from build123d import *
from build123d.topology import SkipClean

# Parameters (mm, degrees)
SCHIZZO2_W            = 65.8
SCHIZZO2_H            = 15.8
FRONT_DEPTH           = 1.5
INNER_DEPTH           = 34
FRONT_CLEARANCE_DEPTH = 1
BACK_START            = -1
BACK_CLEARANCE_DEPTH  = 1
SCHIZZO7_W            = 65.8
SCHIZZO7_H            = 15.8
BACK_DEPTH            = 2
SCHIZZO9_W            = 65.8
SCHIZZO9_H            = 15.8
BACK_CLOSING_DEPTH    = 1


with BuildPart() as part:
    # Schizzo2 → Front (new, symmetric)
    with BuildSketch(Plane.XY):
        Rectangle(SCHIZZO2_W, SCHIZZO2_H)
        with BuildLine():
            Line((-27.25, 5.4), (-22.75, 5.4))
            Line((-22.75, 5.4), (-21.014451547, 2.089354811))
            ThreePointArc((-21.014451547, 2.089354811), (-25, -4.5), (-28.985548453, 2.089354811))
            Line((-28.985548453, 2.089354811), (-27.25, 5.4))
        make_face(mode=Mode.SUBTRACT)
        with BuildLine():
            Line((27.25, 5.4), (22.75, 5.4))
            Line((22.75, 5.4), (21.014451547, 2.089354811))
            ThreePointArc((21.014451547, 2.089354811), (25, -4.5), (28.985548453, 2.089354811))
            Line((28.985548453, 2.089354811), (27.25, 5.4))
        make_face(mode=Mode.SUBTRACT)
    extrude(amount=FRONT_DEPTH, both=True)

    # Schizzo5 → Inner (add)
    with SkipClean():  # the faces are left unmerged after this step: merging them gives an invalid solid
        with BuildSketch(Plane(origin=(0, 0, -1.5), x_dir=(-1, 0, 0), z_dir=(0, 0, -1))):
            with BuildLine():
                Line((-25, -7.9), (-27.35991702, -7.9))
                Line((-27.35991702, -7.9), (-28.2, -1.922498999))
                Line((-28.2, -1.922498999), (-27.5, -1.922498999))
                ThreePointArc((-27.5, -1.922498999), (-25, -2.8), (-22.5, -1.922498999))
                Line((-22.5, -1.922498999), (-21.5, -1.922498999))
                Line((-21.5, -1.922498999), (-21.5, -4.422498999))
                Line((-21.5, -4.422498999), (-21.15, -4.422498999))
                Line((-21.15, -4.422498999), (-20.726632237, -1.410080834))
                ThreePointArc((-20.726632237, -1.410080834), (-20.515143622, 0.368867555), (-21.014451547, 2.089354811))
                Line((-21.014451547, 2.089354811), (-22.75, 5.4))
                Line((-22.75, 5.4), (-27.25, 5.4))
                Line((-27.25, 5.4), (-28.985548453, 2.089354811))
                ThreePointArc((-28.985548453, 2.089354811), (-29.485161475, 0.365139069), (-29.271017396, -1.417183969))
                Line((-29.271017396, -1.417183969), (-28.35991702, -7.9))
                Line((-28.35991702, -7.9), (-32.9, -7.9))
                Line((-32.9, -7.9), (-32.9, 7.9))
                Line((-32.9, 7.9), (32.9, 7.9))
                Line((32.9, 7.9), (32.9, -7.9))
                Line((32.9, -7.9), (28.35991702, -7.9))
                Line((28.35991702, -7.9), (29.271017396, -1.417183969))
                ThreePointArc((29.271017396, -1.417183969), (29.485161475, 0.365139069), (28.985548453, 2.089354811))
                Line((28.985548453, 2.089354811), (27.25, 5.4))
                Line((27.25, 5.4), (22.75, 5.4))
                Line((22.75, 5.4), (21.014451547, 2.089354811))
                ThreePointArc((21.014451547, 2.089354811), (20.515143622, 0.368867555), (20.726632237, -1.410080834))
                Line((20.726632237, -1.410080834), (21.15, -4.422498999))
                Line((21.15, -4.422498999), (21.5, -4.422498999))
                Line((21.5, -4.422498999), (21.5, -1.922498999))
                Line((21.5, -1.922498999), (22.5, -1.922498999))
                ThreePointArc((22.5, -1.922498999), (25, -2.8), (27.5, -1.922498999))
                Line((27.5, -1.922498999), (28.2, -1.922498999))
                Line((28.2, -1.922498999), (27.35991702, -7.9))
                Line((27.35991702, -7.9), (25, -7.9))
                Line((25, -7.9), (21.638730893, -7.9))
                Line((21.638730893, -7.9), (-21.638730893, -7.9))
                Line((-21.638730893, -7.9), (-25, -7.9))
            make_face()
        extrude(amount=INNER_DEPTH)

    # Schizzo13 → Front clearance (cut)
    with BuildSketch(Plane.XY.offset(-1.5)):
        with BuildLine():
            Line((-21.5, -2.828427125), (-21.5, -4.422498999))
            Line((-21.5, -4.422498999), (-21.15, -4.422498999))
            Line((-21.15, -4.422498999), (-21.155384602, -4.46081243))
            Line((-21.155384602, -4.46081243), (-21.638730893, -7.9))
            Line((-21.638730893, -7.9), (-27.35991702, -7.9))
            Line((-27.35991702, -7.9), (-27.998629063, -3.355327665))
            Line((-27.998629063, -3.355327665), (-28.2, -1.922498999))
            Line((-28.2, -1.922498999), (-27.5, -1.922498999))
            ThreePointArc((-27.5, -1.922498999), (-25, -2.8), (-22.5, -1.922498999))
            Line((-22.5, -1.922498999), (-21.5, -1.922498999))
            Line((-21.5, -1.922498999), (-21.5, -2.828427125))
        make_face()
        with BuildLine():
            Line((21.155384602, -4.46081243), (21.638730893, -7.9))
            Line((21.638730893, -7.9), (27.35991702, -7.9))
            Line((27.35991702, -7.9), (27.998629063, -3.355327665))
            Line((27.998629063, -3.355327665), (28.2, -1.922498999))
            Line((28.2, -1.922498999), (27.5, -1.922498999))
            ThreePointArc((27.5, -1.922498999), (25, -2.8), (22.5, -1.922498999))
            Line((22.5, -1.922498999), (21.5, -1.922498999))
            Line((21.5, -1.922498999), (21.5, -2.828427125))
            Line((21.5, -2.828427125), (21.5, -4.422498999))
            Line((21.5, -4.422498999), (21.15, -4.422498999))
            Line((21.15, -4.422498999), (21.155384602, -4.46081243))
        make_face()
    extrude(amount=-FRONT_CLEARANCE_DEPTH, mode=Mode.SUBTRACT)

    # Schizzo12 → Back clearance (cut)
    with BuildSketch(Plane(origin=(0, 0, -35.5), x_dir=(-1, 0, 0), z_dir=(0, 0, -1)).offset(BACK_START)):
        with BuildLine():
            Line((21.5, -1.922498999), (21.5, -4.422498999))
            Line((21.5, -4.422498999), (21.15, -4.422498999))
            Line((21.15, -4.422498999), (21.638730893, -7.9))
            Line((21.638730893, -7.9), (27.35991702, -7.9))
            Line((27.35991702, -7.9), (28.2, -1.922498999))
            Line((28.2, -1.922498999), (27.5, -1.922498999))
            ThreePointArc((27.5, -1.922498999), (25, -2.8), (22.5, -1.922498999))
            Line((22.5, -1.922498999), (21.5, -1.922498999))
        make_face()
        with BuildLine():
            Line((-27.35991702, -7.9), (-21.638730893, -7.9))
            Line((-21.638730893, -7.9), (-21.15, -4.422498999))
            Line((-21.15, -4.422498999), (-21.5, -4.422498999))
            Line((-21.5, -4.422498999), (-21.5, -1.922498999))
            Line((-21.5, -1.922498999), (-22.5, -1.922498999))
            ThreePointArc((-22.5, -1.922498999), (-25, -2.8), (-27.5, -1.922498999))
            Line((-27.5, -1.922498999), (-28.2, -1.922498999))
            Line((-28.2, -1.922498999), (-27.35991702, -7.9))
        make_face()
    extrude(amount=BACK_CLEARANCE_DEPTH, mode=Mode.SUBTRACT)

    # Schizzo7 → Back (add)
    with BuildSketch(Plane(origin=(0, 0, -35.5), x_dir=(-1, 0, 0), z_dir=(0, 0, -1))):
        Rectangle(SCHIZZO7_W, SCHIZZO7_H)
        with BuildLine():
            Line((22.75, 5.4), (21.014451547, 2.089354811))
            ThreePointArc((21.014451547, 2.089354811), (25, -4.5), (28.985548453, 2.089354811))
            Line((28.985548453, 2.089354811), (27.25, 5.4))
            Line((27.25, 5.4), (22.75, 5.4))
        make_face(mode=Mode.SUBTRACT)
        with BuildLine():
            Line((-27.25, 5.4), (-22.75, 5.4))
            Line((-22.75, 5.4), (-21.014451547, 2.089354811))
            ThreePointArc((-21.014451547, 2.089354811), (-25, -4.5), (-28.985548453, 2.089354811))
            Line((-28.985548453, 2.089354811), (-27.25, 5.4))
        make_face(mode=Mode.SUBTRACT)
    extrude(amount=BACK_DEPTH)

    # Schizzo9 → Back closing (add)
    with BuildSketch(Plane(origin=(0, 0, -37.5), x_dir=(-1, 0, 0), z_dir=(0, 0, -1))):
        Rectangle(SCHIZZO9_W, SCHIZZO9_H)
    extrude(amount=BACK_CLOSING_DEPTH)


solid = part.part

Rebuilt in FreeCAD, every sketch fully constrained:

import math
import FreeCAD as App
import Part
import Sketcher
Q = App.Units.Quantity

doc = App.newDocument("Part")
body = doc.addObject("PartDesign::Body", "Body")

sketch1 = doc.addObject("Sketcher::SketchObject", "Sketch")
body.addObject(sketch1)
sketch1.AttachmentSupport = (doc.XY_Plane, [""])
sketch1.MapMode = "FlatFace"
sketch1.addGeometry([
    Part.LineSegment(App.Vector(-32.9, 7.9, 0), App.Vector(-32.9, -7.9, 0)),
    Part.LineSegment(App.Vector(-32.9, -7.9, 0), App.Vector(32.9, -7.9, 0)),
    Part.LineSegment(App.Vector(32.9, -7.9, 0), App.Vector(32.9, 7.9, 0)),
    Part.LineSegment(App.Vector(32.9, 7.9, 0), App.Vector(-32.9, 7.9, 0)),
    Part.LineSegment(App.Vector(-29, 2.1, 0), App.Vector(-27.2, 5.4, 0)),
    Part.LineSegment(App.Vector(-27.2, 5.4, 0), App.Vector(-22.8, 5.4, 0)),
    Part.LineSegment(App.Vector(-22.8, 5.4, 0), App.Vector(-21, 2.1, 0)),
    Part.ArcOfCircle(Part.Circle(App.Vector(-25, 0, 0), App.Vector(0, 0, 1), 4.5), math.radians(152), math.radians(388)),
    Part.LineSegment(App.Vector(22.8, 5.4, 0), App.Vector(27.2, 5.4, 0)),
    Part.LineSegment(App.Vector(27.2, 5.4, 0), App.Vector(29, 2.1, 0)),
    Part.ArcOfCircle(Part.Circle(App.Vector(25, 0, 0), App.Vector(0, 0, 1), 4.5), math.radians(152), math.radians(388)),
    Part.LineSegment(App.Vector(21, 2.1, 0), App.Vector(22.8, 5.4, 0)),
], False)
sketch1.addConstraint([
    Sketcher.Constraint("Coincident", 0, 2, 1, 1),
    Sketcher.Constraint("Coincident", 1, 2, 2, 1),
    Sketcher.Constraint("Coincident", 2, 2, 3, 1),
    Sketcher.Constraint("Coincident", 3, 2, 0, 1),
    Sketcher.Constraint("Coincident", 4, 2, 5, 1),
    Sketcher.Constraint("Coincident", 5, 2, 6, 1),
    Sketcher.Constraint("Tangent", 6, 2, 7, 2),
    Sketcher.Constraint("Tangent", 7, 1, 4, 1),
    Sketcher.Constraint("Coincident", 8, 2, 9, 1),
    Sketcher.Constraint("Tangent", 9, 2, 10, 2),
    Sketcher.Constraint("Tangent", 10, 1, 11, 1),
    Sketcher.Constraint("Coincident", 11, 2, 8, 1),
    Sketcher.Constraint("Vertical", 0),
    Sketcher.Constraint("Horizontal", 1),
    Sketcher.Constraint("Vertical", 2),
    Sketcher.Constraint("Horizontal", 3),
    Sketcher.Constraint("Horizontal", 5),
    Sketcher.Constraint("Horizontal", 8),
    Sketcher.Constraint("Equal", 7, 10),
    Sketcher.Constraint("Symmetric", 7, 3, 10, 3, -1, 1),
    Sketcher.Constraint("Symmetric", 0, 2, 2, 2, -1, 1),
    Sketcher.Constraint("Symmetric", 4, 2, 8, 2, -2),
    Sketcher.Constraint("Symmetric", 6, 2, 10, 1, -2),
    Sketcher.Constraint("Parallel", 6, 9),
    Sketcher.Constraint("Radius", 7, 4.5),
    Sketcher.Constraint("DistanceX", 1, 1, 1, 2, 65.8),
    Sketcher.Constraint("DistanceX", 5, 1, 5, 2, 4.5),
    Sketcher.Constraint("DistanceY", 0, 2, 0, 1, 15.8),
    Sketcher.Constraint("DistanceX", 7, 3, -1, 1, 25.0),
    Sketcher.Constraint("DistanceY", -1, 1, 4, 2, 5.4),
])
pad1 = doc.addObject("PartDesign::Pad", "Pad")
body.addObject(pad1)
pad1.Profile = sketch1
pad1.Length = 3
pad1.Midplane = True

sketch2 = doc.addObject("Sketcher::SketchObject", "Sketch001")
body.addObject(sketch2)
sketch2.AttachmentSupport = (doc.XY_Plane, [""])
sketch2.MapMode = "FlatFace"
sketch2.AttachmentOffset = App.Placement(App.Vector(0, 0, -1.5), App.Rotation())
sketch2.addGeometry([
    Part.LineSegment(App.Vector(27.36, -7.9, 0), App.Vector(-27.36, -7.9, 0)),
    Part.LineSegment(App.Vector(-27.36, -7.9, 0), App.Vector(-28.2, -1.92, 0)),
    Part.LineSegment(App.Vector(-28.2, -1.92, 0), App.Vector(-27.5, -1.92, 0)),
    Part.ArcOfCircle(Part.Circle(App.Vector(-25, 1.2, 0), App.Vector(0, 0, 1), 4), math.radians(-129), math.radians(-51)),
    Part.LineSegment(App.Vector(-22.5, -1.92, 0), App.Vector(-21.5, -1.92, 0)),
    Part.LineSegment(App.Vector(-21.5, -1.92, 0), App.Vector(-21.5, -4.42, 0)),
    Part.LineSegment(App.Vector(-21.5, -4.42, 0), App.Vector(-21.15, -4.42, 0)),
    Part.LineSegment(App.Vector(-21.15, -4.42, 0), App.Vector(-20.73, -1.41, 0)),
    Part.ArcOfCircle(Part.Circle(App.Vector(-25, 0, 0), App.Vector(0, 0, 1), 4.5), math.radians(-18), math.radians(28)),
    Part.LineSegment(App.Vector(-21.01, 2.09, 0), App.Vector(-22.75, 5.4, 0)),
    Part.LineSegment(App.Vector(-22.75, 5.4, 0), App.Vector(-27.25, 5.4, 0)),
    Part.LineSegment(App.Vector(-27.25, 5.4, 0), App.Vector(-28.99, 2.09, 0)),
    Part.ArcOfCircle(Part.Circle(App.Vector(-25, 0, 0), App.Vector(0, 0, 1), 4.5), math.radians(152), math.radians(198)),
    Part.LineSegment(App.Vector(-29.27, -1.42, 0), App.Vector(-28.36, -7.9, 0)),
    Part.LineSegment(App.Vector(-28.36, -7.9, 0), App.Vector(-32.9, -7.9, 0)),
    Part.LineSegment(App.Vector(-32.9, -7.9, 0), App.Vector(-32.9, 7.9, 0)),
    Part.LineSegment(App.Vector(-32.9, 7.9, 0), App.Vector(32.9, 7.9, 0)),
    Part.LineSegment(App.Vector(32.9, 7.9, 0), App.Vector(32.9, -7.9, 0)),
    Part.LineSegment(App.Vector(32.9, -7.9, 0), App.Vector(28.36, -7.9, 0)),
    Part.LineSegment(App.Vector(28.36, -7.9, 0), App.Vector(29.27, -1.42, 0)),
    Part.ArcOfCircle(Part.Circle(App.Vector(25, 0, 0), App.Vector(0, 0, 1), 4.5), math.radians(-18), math.radians(28)),
    Part.LineSegment(App.Vector(28.99, 2.09, 0), App.Vector(27.25, 5.4, 0)),
    Part.LineSegment(App.Vector(27.25, 5.4, 0), App.Vector(22.75, 5.4, 0)),
    Part.LineSegment(App.Vector(22.75, 5.4, 0), App.Vector(21.01, 2.09, 0)),
    Part.ArcOfCircle(Part.Circle(App.Vector(25, 0, 0), App.Vector(0, 0, 1), 4.5), math.radians(152), math.radians(198)),
    Part.LineSegment(App.Vector(20.73, -1.41, 0), App.Vector(21.15, -4.42, 0)),
    Part.LineSegment(App.Vector(21.15, -4.42, 0), App.Vector(21.5, -4.42, 0)),
    Part.LineSegment(App.Vector(21.5, -4.42, 0), App.Vector(21.5, -1.92, 0)),
    Part.LineSegment(App.Vector(21.5, -1.92, 0), App.Vector(22.5, -1.92, 0)),
    Part.ArcOfCircle(Part.Circle(App.Vector(25, 1.2, 0), App.Vector(0, 0, 1), 4), math.radians(-129), math.radians(-51)),
    Part.LineSegment(App.Vector(27.5, -1.92, 0), App.Vector(28.2, -1.92, 0)),
    Part.LineSegment(App.Vector(28.2, -1.92, 0), App.Vector(27.36, -7.9, 0)),
], False)
sketch2.addConstraint([
    Sketcher.Constraint("Coincident", 0, 2, 1, 1),
    Sketcher.Constraint("Coincident", 1, 2, 2, 1),
    Sketcher.Constraint("Coincident", 2, 2, 3, 1),
    Sketcher.Constraint("Coincident", 3, 2, 4, 1),
    Sketcher.Constraint("Coincident", 4, 2, 5, 1),
    Sketcher.Constraint("Coincident", 5, 2, 6, 1),
    Sketcher.Constraint("Coincident", 6, 2, 7, 1),
    Sketcher.Constraint("Coincident", 7, 2, 8, 1),
    Sketcher.Constraint("Tangent", 8, 2, 9, 1),
    Sketcher.Constraint("Coincident", 9, 2, 10, 1),
    Sketcher.Constraint("Coincident", 10, 2, 11, 1),
    Sketcher.Constraint("Tangent", 11, 2, 12, 1),
    Sketcher.Constraint("Coincident", 12, 2, 13, 1),
    Sketcher.Constraint("Coincident", 13, 2, 14, 1),
    Sketcher.Constraint("Coincident", 14, 2, 15, 1),
    Sketcher.Constraint("Coincident", 15, 2, 16, 1),
    Sketcher.Constraint("Coincident", 16, 2, 17, 1),
    Sketcher.Constraint("Coincident", 17, 2, 18, 1),
    Sketcher.Constraint("Coincident", 18, 2, 19, 1),
    Sketcher.Constraint("Coincident", 19, 2, 20, 1),
    Sketcher.Constraint("Tangent", 20, 2, 21, 1),
    Sketcher.Constraint("Coincident", 21, 2, 22, 1),
    Sketcher.Constraint("Coincident", 22, 2, 23, 1),
    Sketcher.Constraint("Tangent", 23, 2, 24, 1),
    Sketcher.Constraint("Coincident", 24, 2, 25, 1),
    Sketcher.Constraint("Coincident", 25, 2, 26, 1),
    Sketcher.Constraint("Coincident", 26, 2, 27, 1),
    Sketcher.Constraint("Coincident", 27, 2, 28, 1),
    Sketcher.Constraint("Coincident", 28, 2, 29, 1),
    Sketcher.Constraint("Coincident", 29, 2, 30, 1),
    Sketcher.Constraint("Coincident", 30, 2, 31, 1),
    Sketcher.Constraint("Coincident", 31, 2, 0, 1),
    Sketcher.Constraint("Horizontal", 0),
    Sketcher.Constraint("Horizontal", 2),
    Sketcher.Constraint("Horizontal", 4),
    Sketcher.Constraint("Vertical", 5),
    Sketcher.Constraint("Horizontal", 6),
    Sketcher.Constraint("Horizontal", 10),
    Sketcher.Constraint("Horizontal", 14),
    Sketcher.Constraint("Vertical", 15),
    Sketcher.Constraint("Horizontal", 16),
    Sketcher.Constraint("Vertical", 17),
    Sketcher.Constraint("Horizontal", 18),
    Sketcher.Constraint("Horizontal", 22),
    Sketcher.Constraint("Horizontal", 26),
    Sketcher.Constraint("Vertical", 27),
    Sketcher.Constraint("Horizontal", 28),
    Sketcher.Constraint("Horizontal", 30),
    Sketcher.Constraint("Coincident", 12, 3, 8, 3),
    Sketcher.Constraint("Coincident", 24, 3, 20, 3),
    Sketcher.Constraint("Equal", 8, 12),
    Sketcher.Constraint("Equal", 12, 20),
    Sketcher.Constraint("Equal", 20, 24),
    Sketcher.Constraint("Equal", 3, 29),
    Sketcher.Constraint("Symmetric", 8, 3, 20, 3, -1, 1),
    Sketcher.Constraint("Symmetric", 14, 2, 16, 2, -1, 1),
    Sketcher.Constraint("Symmetric", 3, 3, 29, 3, -2),
    Sketcher.Constraint("Symmetric", 13, 2, 18, 2, -2),
    Sketcher.Constraint("Symmetric", 12, 2, 19, 2, -2),
    Sketcher.Constraint("Symmetric", 10, 2, 21, 2, -2),
    Sketcher.Constraint("Symmetric", 6, 2, 25, 2, -2),
    Sketcher.Constraint("Symmetric", 4, 2, 27, 2, -2),
    Sketcher.Constraint("Symmetric", 1, 2, 30, 2, -2),
    Sketcher.Constraint("Parallel", 1, 13),
    Sketcher.Constraint("Parallel", 7, 19),
    Sketcher.Constraint("Parallel", 9, 21),
    Sketcher.Constraint("Parallel", 11, 23),
    Sketcher.Constraint("Parallel", 13, 25),
    Sketcher.Constraint("Parallel", 19, 31),
    Sketcher.Constraint("Horizontal", 2, 2, 3, 2),
    Sketcher.Constraint("Horizontal", 0, 2, 13, 2),
    Sketcher.Constraint("Vertical", 3, 3, 8, 3),
    Sketcher.Constraint("Radius", 3, 4.0),
    Sketcher.Constraint("Radius", 8, 4.5),
    Sketcher.Constraint("DistanceX", 4, 1, 4, 2, 1.0),
    Sketcher.Constraint("Angle", 1, Q("98 deg")),
    Sketcher.Constraint("DistanceX", 2, 1, 2, 2, 0.7),
    Sketcher.Constraint("DistanceX", 10, 2, 10, 1, 4.5),
    Sketcher.Constraint("DistanceX", 16, 1, 16, 2, 65.8),
    Sketcher.Constraint("DistanceY", 5, 2, 5, 1, 2.5),
    Sketcher.Constraint("DistanceY", 15, 1, 15, 2, 15.8),
    Sketcher.Constraint("DistanceX", 3, 3, -1, 1, 25.0),
    Sketcher.Constraint("DistanceX", 2, 2, 3, 2, 5.0),
    Sketcher.Constraint("DistanceX", 13, 2, 0, 2, 1.0),
    Sketcher.Constraint("DistanceX", 6, 1, 6, 2, 0.35),
    Sketcher.Constraint("DistanceY", -1, 1, 3, 3, 1.2),
    Sketcher.Constraint("DistanceY", -1, 1, 9, 2, 5.4),
])
pad2 = doc.addObject("PartDesign::Pad", "Pad001")
body.addObject(pad2)
pad2.Profile = sketch2
pad2.Length = 34
pad2.Reversed = True

sketch3 = doc.addObject("Sketcher::SketchObject", "Sketch002")
body.addObject(sketch3)
sketch3.AttachmentSupport = (doc.XY_Plane, [""])
sketch3.MapMode = "FlatFace"
sketch3.AttachmentOffset = App.Placement(App.Vector(0, 0, -1.5), App.Rotation())
sketch3.addGeometry([
    Part.LineSegment(App.Vector(-21.15, -4.422, 0), App.Vector(-21.5, -4.422, 0)),
    Part.LineSegment(App.Vector(-21.5, -4.422, 0), App.Vector(-21.5, -1.922, 0)),
    Part.LineSegment(App.Vector(-21.5, -1.922, 0), App.Vector(-22.5, -1.922, 0)),
    Part.ArcOfCircle(Part.Circle(App.Vector(-25, 1.2, 0), App.Vector(0, 0, 1), 4), math.radians(-129), math.radians(-51)),
    Part.LineSegment(App.Vector(-27.5, -1.922, 0), App.Vector(-28.2, -1.922, 0)),
    Part.LineSegment(App.Vector(-28.2, -1.922, 0), App.Vector(-27.999, -3.355, 0)),
    Part.LineSegment(App.Vector(-27.999, -3.355, 0), App.Vector(-27.36, -7.9, 0)),
    Part.LineSegment(App.Vector(-27.36, -7.9, 0), App.Vector(-21.639, -7.9, 0)),
    Part.LineSegment(App.Vector(-21.639, -7.9, 0), App.Vector(-21.155, -4.461, 0)),
    Part.LineSegment(App.Vector(-21.155, -4.461, 0), App.Vector(-21.15, -4.422, 0)),
    Part.LineSegment(App.Vector(21.155, -4.461, 0), App.Vector(21.639, -7.9, 0)),
    Part.LineSegment(App.Vector(21.639, -7.9, 0), App.Vector(27.36, -7.9, 0)),
    Part.LineSegment(App.Vector(27.36, -7.9, 0), App.Vector(27.999, -3.355, 0)),
    Part.LineSegment(App.Vector(27.999, -3.355, 0), App.Vector(28.2, -1.922, 0)),
    Part.LineSegment(App.Vector(28.2, -1.922, 0), App.Vector(27.5, -1.922, 0)),
    Part.ArcOfCircle(Part.Circle(App.Vector(25, 1.2, 0), App.Vector(0, 0, 1), 4), math.radians(-129), math.radians(-51)),
    Part.LineSegment(App.Vector(22.5, -1.922, 0), App.Vector(21.5, -1.922, 0)),
    Part.LineSegment(App.Vector(21.5, -1.922, 0), App.Vector(21.5, -4.422, 0)),
    Part.LineSegment(App.Vector(21.5, -4.422, 0), App.Vector(21.15, -4.422, 0)),
    Part.LineSegment(App.Vector(21.15, -4.422, 0), App.Vector(21.155, -4.461, 0)),
], False)
sketch3.addConstraint([
    Sketcher.Constraint("Coincident", 0, 2, 1, 1),
    Sketcher.Constraint("Coincident", 1, 2, 2, 1),
    Sketcher.Constraint("Coincident", 2, 2, 3, 2),
    Sketcher.Constraint("Coincident", 3, 1, 4, 1),
    Sketcher.Constraint("Coincident", 4, 2, 5, 1),
    Sketcher.Constraint("Coincident", 5, 2, 6, 1),
    Sketcher.Constraint("Coincident", 6, 2, 7, 1),
    Sketcher.Constraint("Coincident", 7, 2, 8, 1),
    Sketcher.Constraint("Coincident", 8, 2, 9, 1),
    Sketcher.Constraint("Coincident", 9, 2, 0, 1),
    Sketcher.Constraint("Coincident", 10, 2, 11, 1),
    Sketcher.Constraint("Coincident", 11, 2, 12, 1),
    Sketcher.Constraint("Coincident", 12, 2, 13, 1),
    Sketcher.Constraint("Coincident", 13, 2, 14, 1),
    Sketcher.Constraint("Coincident", 14, 2, 15, 2),
    Sketcher.Constraint("Coincident", 15, 1, 16, 1),
    Sketcher.Constraint("Coincident", 16, 2, 17, 1),
    Sketcher.Constraint("Coincident", 17, 2, 18, 1),
    Sketcher.Constraint("Coincident", 18, 2, 19, 1),
    Sketcher.Constraint("Coincident", 19, 2, 10, 1),
    Sketcher.Constraint("Horizontal", 0),
    Sketcher.Constraint("Vertical", 1),
    Sketcher.Constraint("Horizontal", 2),
    Sketcher.Constraint("Horizontal", 4),
    Sketcher.Constraint("Horizontal", 7),
    Sketcher.Constraint("Horizontal", 11),
    Sketcher.Constraint("Horizontal", 14),
    Sketcher.Constraint("Horizontal", 16),
    Sketcher.Constraint("Vertical", 17),
    Sketcher.Constraint("Horizontal", 18),
    Sketcher.Constraint("Equal", 3, 15),
    Sketcher.Constraint("Symmetric", 3, 3, 15, 3, -2),
    Sketcher.Constraint("Symmetric", 7, 2, 10, 2, -2),
    Sketcher.Constraint("Symmetric", 5, 2, 12, 2, -2),
    Sketcher.Constraint("Symmetric", 4, 2, 13, 2, -2),
    Sketcher.Constraint("Symmetric", 1, 2, 16, 2, -2),
    Sketcher.Constraint("Symmetric", 9, 2, 18, 2, -2),
    Sketcher.Constraint("Symmetric", 8, 2, 19, 2, -2),
    Sketcher.Constraint("Parallel", 5, 6),
    Sketcher.Constraint("Parallel", 8, 9),
    Sketcher.Constraint("Parallel", 6, 10),
    Sketcher.Constraint("Parallel", 9, 12),
    Sketcher.Constraint("Horizontal", 2, 2, 3, 1),
    Sketcher.Constraint("Radius", 3, 4.0),
    Sketcher.Constraint("DistanceX", 2, 2, 2, 1, 1.0),
    Sketcher.Constraint("Angle", 5, Q("-82 deg")),
    Sketcher.Constraint("DistanceX", 4, 2, 4, 1, 0.7),
    Sketcher.Constraint("DistanceY", 1, 1, 1, 2, 2.5),
    Sketcher.Constraint("DistanceX", 3, 3, -1, 1, 25.0),
    Sketcher.Constraint("DistanceX", 3, 1, 2, 2, 5.0),
    Sketcher.Constraint("DistanceX", 0, 2, 0, 1, 0.35),
    Sketcher.Constraint("DistanceY", -1, 1, 3, 3, 1.2),
    Sketcher.Constraint("DistanceY", 6, 2, -1, 1, 7.9),
    Sketcher.Constraint("DistanceX", 5, 2, 7, 2, 6.359898),
    Sketcher.Constraint("DistanceX", 8, 2, 11, 2, 48.515302),
])
pocket1 = doc.addObject("PartDesign::Pocket", "Pocket")
body.addObject(pocket1)
pocket1.Profile = sketch3
pocket1.Length = 1

sketch4 = doc.addObject("Sketcher::SketchObject", "Sketch003")
body.addObject(sketch4)
sketch4.AttachmentSupport = (doc.XY_Plane, [""])
sketch4.MapMode = "FlatFace"
sketch4.AttachmentOffset = App.Placement(App.Vector(0, 0, -34.5), App.Rotation())
sketch4.addGeometry([
    Part.LineSegment(App.Vector(-21.5, -1.92, 0), App.Vector(-21.5, -4.42, 0)),
    Part.LineSegment(App.Vector(-21.5, -4.42, 0), App.Vector(-21.15, -4.42, 0)),
    Part.LineSegment(App.Vector(-21.15, -4.42, 0), App.Vector(-21.64, -7.9, 0)),
    Part.LineSegment(App.Vector(-21.64, -7.9, 0), App.Vector(-27.36, -7.9, 0)),
    Part.LineSegment(App.Vector(-27.36, -7.9, 0), App.Vector(-28.2, -1.92, 0)),
    Part.LineSegment(App.Vector(-28.2, -1.92, 0), App.Vector(-27.5, -1.92, 0)),
    Part.ArcOfCircle(Part.Circle(App.Vector(-25, 1.2, 0), App.Vector(0, 0, 1), 4), math.radians(-129), math.radians(-51)),
    Part.LineSegment(App.Vector(-22.5, -1.92, 0), App.Vector(-21.5, -1.92, 0)),
    Part.LineSegment(App.Vector(27.36, -7.9, 0), App.Vector(21.64, -7.9, 0)),
    Part.LineSegment(App.Vector(21.64, -7.9, 0), App.Vector(21.15, -4.42, 0)),
    Part.LineSegment(App.Vector(21.15, -4.42, 0), App.Vector(21.5, -4.42, 0)),
    Part.LineSegment(App.Vector(21.5, -4.42, 0), App.Vector(21.5, -1.92, 0)),
    Part.LineSegment(App.Vector(21.5, -1.92, 0), App.Vector(22.5, -1.92, 0)),
    Part.ArcOfCircle(Part.Circle(App.Vector(25, 1.2, 0), App.Vector(0, 0, 1), 4), math.radians(-129), math.radians(-51)),
    Part.LineSegment(App.Vector(27.5, -1.92, 0), App.Vector(28.2, -1.92, 0)),
    Part.LineSegment(App.Vector(28.2, -1.92, 0), App.Vector(27.36, -7.9, 0)),
], False)
sketch4.addConstraint([
    Sketcher.Constraint("Coincident", 0, 2, 1, 1),
    Sketcher.Constraint("Coincident", 1, 2, 2, 1),
    Sketcher.Constraint("Coincident", 2, 2, 3, 1),
    Sketcher.Constraint("Coincident", 3, 2, 4, 1),
    Sketcher.Constraint("Coincident", 4, 2, 5, 1),
    Sketcher.Constraint("Coincident", 5, 2, 6, 1),
    Sketcher.Constraint("Coincident", 6, 2, 7, 1),
    Sketcher.Constraint("Coincident", 7, 2, 0, 1),
    Sketcher.Constraint("Coincident", 8, 2, 9, 1),
    Sketcher.Constraint("Coincident", 9, 2, 10, 1),
    Sketcher.Constraint("Coincident", 10, 2, 11, 1),
    Sketcher.Constraint("Coincident", 11, 2, 12, 1),
    Sketcher.Constraint("Coincident", 12, 2, 13, 1),
    Sketcher.Constraint("Coincident", 13, 2, 14, 1),
    Sketcher.Constraint("Coincident", 14, 2, 15, 1),
    Sketcher.Constraint("Coincident", 15, 2, 8, 1),
    Sketcher.Constraint("Vertical", 0),
    Sketcher.Constraint("Horizontal", 1),
    Sketcher.Constraint("Horizontal", 3),
    Sketcher.Constraint("Horizontal", 5),
    Sketcher.Constraint("Horizontal", 7),
    Sketcher.Constraint("Horizontal", 8),
    Sketcher.Constraint("Horizontal", 10),
    Sketcher.Constraint("Vertical", 11),
    Sketcher.Constraint("Horizontal", 12),
    Sketcher.Constraint("Horizontal", 14),
    Sketcher.Constraint("Equal", 6, 13),
    Sketcher.Constraint("Symmetric", 6, 3, 13, 3, -2),
    Sketcher.Constraint("Symmetric", 2, 2, 8, 2, -2),
    Sketcher.Constraint("Symmetric", 1, 2, 9, 2, -2),
    Sketcher.Constraint("Symmetric", 7, 2, 11, 2, -2),
    Sketcher.Constraint("Symmetric", 4, 2, 14, 2, -2),
    Sketcher.Constraint("Parallel", 4, 9),
    Sketcher.Constraint("Parallel", 2, 15),
    Sketcher.Constraint("Horizontal", 5, 2, 6, 2),
    Sketcher.Constraint("Radius", 6, 4.0),
    Sketcher.Constraint("DistanceX", 7, 1, 7, 2, 1.0),
    Sketcher.Constraint("Angle", 2, Q("-98 deg")),
    Sketcher.Constraint("DistanceX", 5, 1, 5, 2, 0.7),
    Sketcher.Constraint("DistanceY", 0, 2, 0, 1, 2.5),
    Sketcher.Constraint("DistanceX", 6, 3, -1, 1, 25.0),
    Sketcher.Constraint("DistanceX", 5, 2, 0, 2, 6.0),
    Sketcher.Constraint("DistanceX", 1, 1, 1, 2, 0.35),
    Sketcher.Constraint("DistanceY", -1, 1, 6, 3, 1.2),
    Sketcher.Constraint("DistanceY", 2, 2, -1, 1, 7.9),
])
pocket2 = doc.addObject("PartDesign::Pocket", "Pocket001")
body.addObject(pocket2)
pocket2.Profile = sketch4
pocket2.Length = 1

sketch5 = doc.addObject("Sketcher::SketchObject", "Sketch004")
body.addObject(sketch5)
sketch5.AttachmentSupport = (doc.XY_Plane, [""])
sketch5.MapMode = "FlatFace"
sketch5.AttachmentOffset = App.Placement(App.Vector(0, 0, -35.5), App.Rotation())
sketch5.addGeometry([
    Part.LineSegment(App.Vector(32.9, 7.9, 0), App.Vector(32.9, -7.9, 0)),
    Part.LineSegment(App.Vector(32.9, -7.9, 0), App.Vector(-32.9, -7.9, 0)),
    Part.LineSegment(App.Vector(-32.9, -7.9, 0), App.Vector(-32.9, 7.9, 0)),
    Part.LineSegment(App.Vector(-32.9, 7.9, 0), App.Vector(32.9, 7.9, 0)),
    Part.LineSegment(App.Vector(29, 2.1, 0), App.Vector(27.2, 5.4, 0)),
    Part.LineSegment(App.Vector(27.2, 5.4, 0), App.Vector(22.8, 5.4, 0)),
    Part.LineSegment(App.Vector(22.8, 5.4, 0), App.Vector(21, 2.1, 0)),
    Part.ArcOfCircle(Part.Circle(App.Vector(25, 0, 0), App.Vector(0, 0, 1), 4.5), math.radians(152), math.radians(388)),
    Part.LineSegment(App.Vector(-21, 2.1, 0), App.Vector(-22.8, 5.4, 0)),
    Part.LineSegment(App.Vector(-22.8, 5.4, 0), App.Vector(-27.2, 5.4, 0)),
    Part.LineSegment(App.Vector(-27.2, 5.4, 0), App.Vector(-29, 2.1, 0)),
    Part.ArcOfCircle(Part.Circle(App.Vector(-25, 0, 0), App.Vector(0, 0, 1), 4.5), math.radians(152), math.radians(388)),
], False)
sketch5.addConstraint([
    Sketcher.Constraint("Coincident", 0, 2, 1, 1),
    Sketcher.Constraint("Coincident", 1, 2, 2, 1),
    Sketcher.Constraint("Coincident", 2, 2, 3, 1),
    Sketcher.Constraint("Coincident", 3, 2, 0, 1),
    Sketcher.Constraint("Coincident", 4, 2, 5, 1),
    Sketcher.Constraint("Coincident", 5, 2, 6, 1),
    Sketcher.Constraint("Tangent", 6, 2, 7, 1),
    Sketcher.Constraint("Tangent", 7, 2, 4, 1),
    Sketcher.Constraint("Coincident", 8, 2, 9, 1),
    Sketcher.Constraint("Coincident", 9, 2, 10, 1),
    Sketcher.Constraint("Tangent", 10, 2, 11, 1),
    Sketcher.Constraint("Tangent", 11, 2, 8, 1),
    Sketcher.Constraint("Vertical", 0),
    Sketcher.Constraint("Horizontal", 1),
    Sketcher.Constraint("Vertical", 2),
    Sketcher.Constraint("Horizontal", 3),
    Sketcher.Constraint("Horizontal", 5),
    Sketcher.Constraint("Horizontal", 9),
    Sketcher.Constraint("Equal", 7, 11),
    Sketcher.Constraint("Symmetric", 7, 3, 11, 3, -1, 1),
    Sketcher.Constraint("Symmetric", 0, 2, 2, 2, -1, 1),
    Sketcher.Constraint("Symmetric", 5, 2, 8, 2, -2),
    Sketcher.Constraint("Symmetric", 7, 2, 10, 2, -2),
    Sketcher.Constraint("Parallel", 4, 8),
    Sketcher.Constraint("Radius", 7, 4.5),
    Sketcher.Constraint("DistanceX", 1, 2, 1, 1, 65.8),
    Sketcher.Constraint("DistanceX", 5, 2, 5, 1, 4.5),
    Sketcher.Constraint("DistanceY", 0, 2, 0, 1, 15.8),
    Sketcher.Constraint("DistanceX", -1, 1, 7, 3, 25.0),
    Sketcher.Constraint("DistanceY", -1, 1, 4, 2, 5.4),
])
pad3 = doc.addObject("PartDesign::Pad", "Pad002")
body.addObject(pad3)
pad3.Profile = sketch5
pad3.Length = 2
pad3.Reversed = True

sketch6 = doc.addObject("Sketcher::SketchObject", "Sketch005")
body.addObject(sketch6)
sketch6.AttachmentSupport = (doc.XY_Plane, [""])
sketch6.MapMode = "FlatFace"
sketch6.AttachmentOffset = App.Placement(App.Vector(0, 0, -37.5), App.Rotation())
sketch6.addGeometry([
    Part.LineSegment(App.Vector(33, 8, 0), App.Vector(33, -8, 0)),
    Part.LineSegment(App.Vector(33, -8, 0), App.Vector(-33, -8, 0)),
    Part.LineSegment(App.Vector(-33, -8, 0), App.Vector(-33, 8, 0)),
    Part.LineSegment(App.Vector(-33, 8, 0), App.Vector(33, 8, 0)),
], False)
sketch6.addConstraint([
    Sketcher.Constraint("Coincident", 0, 2, 1, 1),
    Sketcher.Constraint("Coincident", 1, 2, 2, 1),
    Sketcher.Constraint("Coincident", 2, 2, 3, 1),
    Sketcher.Constraint("Coincident", 3, 2, 0, 1),
    Sketcher.Constraint("Vertical", 0),
    Sketcher.Constraint("Horizontal", 1),
    Sketcher.Constraint("Vertical", 2),
    Sketcher.Constraint("Horizontal", 3),
    Sketcher.Constraint("Symmetric", 0, 2, 2, 2, -1, 1),
    Sketcher.Constraint("DistanceX", 1, 2, 1, 1, 65.8),
    Sketcher.Constraint("DistanceY", 0, 2, 0, 1, 15.8),
])
pad4 = doc.addObject("PartDesign::Pad", "Pad003")
body.addObject(pad4)
pad4.Profile = sketch6
pad4.Length = 1
pad4.Reversed = True

doc.recompute()
